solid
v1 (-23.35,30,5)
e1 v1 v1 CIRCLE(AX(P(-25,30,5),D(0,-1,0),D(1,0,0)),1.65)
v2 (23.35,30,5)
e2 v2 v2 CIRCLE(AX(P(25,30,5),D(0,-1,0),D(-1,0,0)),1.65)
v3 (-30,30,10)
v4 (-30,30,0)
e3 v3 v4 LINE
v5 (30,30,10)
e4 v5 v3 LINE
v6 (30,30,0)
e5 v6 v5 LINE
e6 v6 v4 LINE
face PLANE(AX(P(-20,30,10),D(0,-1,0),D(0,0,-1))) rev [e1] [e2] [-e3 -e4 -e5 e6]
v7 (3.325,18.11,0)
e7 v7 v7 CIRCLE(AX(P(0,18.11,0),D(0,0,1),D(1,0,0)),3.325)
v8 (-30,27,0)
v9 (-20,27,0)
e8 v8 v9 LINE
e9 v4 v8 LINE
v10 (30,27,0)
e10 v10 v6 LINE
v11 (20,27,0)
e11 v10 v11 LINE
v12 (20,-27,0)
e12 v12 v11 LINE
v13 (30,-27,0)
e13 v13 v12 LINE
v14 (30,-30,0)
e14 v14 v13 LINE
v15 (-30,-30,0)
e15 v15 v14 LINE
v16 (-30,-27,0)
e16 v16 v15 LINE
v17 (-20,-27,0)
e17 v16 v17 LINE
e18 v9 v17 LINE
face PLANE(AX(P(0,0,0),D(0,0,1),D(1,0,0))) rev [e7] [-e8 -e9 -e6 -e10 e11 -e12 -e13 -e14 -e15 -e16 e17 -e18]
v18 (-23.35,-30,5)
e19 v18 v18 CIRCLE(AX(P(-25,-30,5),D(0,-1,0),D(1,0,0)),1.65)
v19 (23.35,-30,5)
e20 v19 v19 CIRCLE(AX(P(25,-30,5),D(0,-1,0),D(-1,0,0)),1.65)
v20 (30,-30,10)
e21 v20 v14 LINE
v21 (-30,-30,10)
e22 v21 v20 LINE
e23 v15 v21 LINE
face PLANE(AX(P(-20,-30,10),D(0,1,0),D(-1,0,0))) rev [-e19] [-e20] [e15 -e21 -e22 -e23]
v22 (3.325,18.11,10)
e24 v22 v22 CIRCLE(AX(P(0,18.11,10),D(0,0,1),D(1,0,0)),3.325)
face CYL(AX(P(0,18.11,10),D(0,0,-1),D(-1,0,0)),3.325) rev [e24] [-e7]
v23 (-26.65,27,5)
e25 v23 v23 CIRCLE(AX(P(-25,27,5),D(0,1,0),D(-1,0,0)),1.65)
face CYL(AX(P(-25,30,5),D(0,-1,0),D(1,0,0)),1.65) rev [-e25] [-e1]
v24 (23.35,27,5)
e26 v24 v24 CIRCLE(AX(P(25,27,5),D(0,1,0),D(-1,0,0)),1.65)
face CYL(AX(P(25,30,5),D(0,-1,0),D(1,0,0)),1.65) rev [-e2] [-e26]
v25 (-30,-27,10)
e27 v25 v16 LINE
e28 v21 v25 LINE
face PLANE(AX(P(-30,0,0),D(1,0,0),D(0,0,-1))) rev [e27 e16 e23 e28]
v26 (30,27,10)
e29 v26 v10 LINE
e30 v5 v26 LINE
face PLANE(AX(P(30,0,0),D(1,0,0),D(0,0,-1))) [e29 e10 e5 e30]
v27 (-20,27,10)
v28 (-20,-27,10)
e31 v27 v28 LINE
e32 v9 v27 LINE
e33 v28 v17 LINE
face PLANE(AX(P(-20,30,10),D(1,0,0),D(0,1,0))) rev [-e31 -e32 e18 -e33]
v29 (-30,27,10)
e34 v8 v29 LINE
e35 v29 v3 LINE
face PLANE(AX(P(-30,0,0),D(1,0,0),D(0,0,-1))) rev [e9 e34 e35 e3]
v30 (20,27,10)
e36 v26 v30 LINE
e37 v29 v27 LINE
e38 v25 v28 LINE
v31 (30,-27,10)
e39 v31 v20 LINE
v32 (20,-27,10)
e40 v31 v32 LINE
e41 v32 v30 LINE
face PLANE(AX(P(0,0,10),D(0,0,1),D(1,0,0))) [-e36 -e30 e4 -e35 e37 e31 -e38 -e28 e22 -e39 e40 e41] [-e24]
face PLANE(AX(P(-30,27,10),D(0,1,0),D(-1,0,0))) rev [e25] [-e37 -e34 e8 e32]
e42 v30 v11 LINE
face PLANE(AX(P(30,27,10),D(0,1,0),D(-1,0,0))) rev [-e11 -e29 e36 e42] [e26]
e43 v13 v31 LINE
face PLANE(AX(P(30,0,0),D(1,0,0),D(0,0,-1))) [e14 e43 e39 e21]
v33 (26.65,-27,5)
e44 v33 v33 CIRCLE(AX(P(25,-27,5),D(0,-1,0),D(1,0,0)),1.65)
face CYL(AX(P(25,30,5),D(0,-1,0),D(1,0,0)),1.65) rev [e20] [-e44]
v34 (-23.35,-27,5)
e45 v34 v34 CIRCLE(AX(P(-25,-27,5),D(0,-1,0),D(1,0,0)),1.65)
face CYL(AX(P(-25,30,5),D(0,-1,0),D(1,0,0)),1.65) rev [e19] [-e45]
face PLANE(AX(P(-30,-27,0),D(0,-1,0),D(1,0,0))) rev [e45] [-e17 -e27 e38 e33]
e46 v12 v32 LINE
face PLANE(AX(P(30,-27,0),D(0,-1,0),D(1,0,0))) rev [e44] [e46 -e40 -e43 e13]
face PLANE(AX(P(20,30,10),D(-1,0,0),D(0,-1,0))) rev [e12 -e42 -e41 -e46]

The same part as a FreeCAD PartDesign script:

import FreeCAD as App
import Part
import Sketcher
Q = App.Units.Quantity


def add_polygon(sketch, points):
    """Adds a closed chain of lines whose ends are joined by coincident constraints."""
    first, n = sketch.GeometryCount, len(points)
    for a, b in zip(points, points[1:] + points[:1]):
        sketch.addGeometry(Part.LineSegment(App.Vector(*a, 0), App.Vector(*b, 0)), False)
    for i in range(n):
        sketch.addConstraint(Sketcher.Constraint("Coincident", first + i, 2, first + (i + 1) % n, 1))

doc = App.newDocument("Part")
params = doc.addObject("Spreadsheet::Sheet", "Params")
for row, (alias, value) in enumerate([
    ("sketch1_diameter", "6.65 mm"),
    ("sketch1_width", "40 mm"),
    ("sketch1_height", "60 mm"),
    ("pad1_length", "10 mm"),
    ("sketch2_width", "3 mm"),
    ("sketch2_height", "10 mm"),
    ("pad2_length", "10 mm"),
    ("sketch3_width", "3 mm"),
    ("sketch3_height", "10 mm"),
    ("pad3_length", "10 mm"),
    ("sketch4_diameter", "3.3 mm"),
], start=1):
    params.set(f"A{row}", alias)
    params.set(f"B{row}", "=" + value)
    params.setAlias(f"B{row}", alias)

body = doc.addObject("PartDesign::Body", "Body")

sketch1 = doc.addObject("Sketcher::SketchObject", "Sketch")
body.addObject(sketch1)
sketch1.AttachmentSupport = (doc.XY_Plane, [""])
sketch1.MapMode = "FlatFace"
add_polygon(sketch1, [(-20, 30), (-20, -30), (20, -30), (20, 30)])
sketch1.addGeometry(Part.Circle(App.Vector(0, 18.1, 0), App.Vector(0, 0, 1), 3.3), False)
sketch1.addConstraint([
    Sketcher.Constraint("Vertical", 0),
    Sketcher.Constraint("Horizontal", 1),
    Sketcher.Constraint("Vertical", 2),
    Sketcher.Constraint("Horizontal", 3),
    Sketcher.Constraint("Symmetric", 0, 2, 2, 2, -1, 1),
    Sketcher.Constraint("PointOnObject", 4, 3, -2),
    Sketcher.Constraint("Diameter", 4, Q("6.65 mm")),
    Sketcher.Constraint("DistanceX", 1, 1, 1, 2, Q("40 mm")),
    Sketcher.Constraint("DistanceY", 0, 2, 0, 1, Q("60 mm")),
    Sketcher.Constraint("DistanceY", -1, 1, 4, 3, Q("18.11 mm")),
])
sketch1.setExpression("Constraints[10]", "Params.sketch1_diameter")
sketch1.setExpression("Constraints[11]", "Params.sketch1_width")
sketch1.setExpression("Constraints[12]", "Params.sketch1_height")
pad1 = doc.addObject("PartDesign::Pad", "Pad")
body.addObject(pad1)
pad1.Profile = sketch1
pad1.setExpression("Length", "Params.pad1_length")

sketch2 = doc.addObject("Sketcher::SketchObject", "Sketch001")
body.addObject(sketch2)
sketch2.AttachmentSupport = (doc.YZ_Plane, [""])
sketch2.MapMode = "FlatFace"
sketch2.AttachmentOffset = App.Placement(App.Vector(0, 0, 20), App.Rotation())
add_polygon(sketch2, [(30, 10), (27, 10), (27, 0), (30, 0)])
add_polygon(sketch2, [(-27, 10), (-30, 10), (-30, 0), (-27, 0)])
sketch2.addConstraint([
    Sketcher.Constraint("Horizontal", 0),
    Sketcher.Constraint("Vertical", 1),
    Sketcher.Constraint("Horizontal", 2),
    Sketcher.Constraint("Vertical", 3),
    Sketcher.Constraint("Horizontal", 4),
    Sketcher.Constraint("Vertical", 5),
    Sketcher.Constraint("Horizontal", 6),
    Sketcher.Constraint("Vertical", 7),
    Sketcher.Constraint("Symmetric", 2, 2, 5, 2, -1, 1),
    Sketcher.Constraint("Symmetric", 1, 2, 6, 2, -2),
    Sketcher.Constraint("Horizontal", 3, 2, 4, 2),
    Sketcher.Constraint("DistanceX", 0, 2, 0, 1, Q("3 mm")),
    Sketcher.Constraint("DistanceY", 1, 2, 1, 1, Q("10 mm")),
    Sketcher.Constraint("DistanceX", -1, 1, 0, 2, Q("27 mm")),
])
sketch2.setExpression("Constraints[19]", "Params.sketch2_width")
sketch2.setExpression("Constraints[20]", "Params.sketch2_height")
pad2 = doc.addObject("PartDesign::Pad", "Pad001")
body.addObject(pad2)
pad2.Profile = sketch2
pad2.setExpression("Length", "Params.pad2_length")

sketch3 = doc.addObject("Sketcher::SketchObject", "Sketch002")
body.addObject(sketch3)
sketch3.AttachmentSupport = (doc.YZ_Plane, [""])
sketch3.MapMode = "FlatFace"
sketch3.AttachmentOffset = App.Placement(App.Vector(0, 0, -20), App.Rotation())
add_polygon(sketch3, [(30, 0), (27, 0), (27, 10), (30, 10)])
add_polygon(sketch3, [(-27, 0), (-30, 0), (-30, 10), (-27, 10)])
sketch3.addConstraint([
    Sketcher.Constraint("Horizontal", 0),
    Sketcher.Constraint("Vertical", 1),
    Sketcher.Constraint("Horizontal", 2),
    Sketcher.Constraint("Vertical", 3),
    Sketcher.Constraint("Horizontal", 4),
    Sketcher.Constraint("Vertical", 5),
    Sketcher.Constraint("Horizontal", 6),
    Sketcher.Constraint("Vertical", 7),
    Sketcher.Constraint("Symmetric", 3, 2, 4, 2, -1, 1),
    Sketcher.Constraint("Symmetric", 1, 2, 6, 2, -2),
    Sketcher.Constraint("PointOnObject", 0, 2, -1),
    Sketcher.Constraint("DistanceX", 0, 2, 0, 1, Q("3 mm")),
    Sketcher.Constraint("DistanceY", 1, 1, 1, 2, Q("10 mm")),
    Sketcher.Constraint("DistanceX", -1, 1, 0, 2, Q("27 mm")),
])
sketch3.setExpression("Constraints[19]", "Params.sketch3_width")
sketch3.setExpression("Constraints[20]", "Params.sketch3_height")
pad3 = doc.addObject("PartDesign::Pad", "Pad002")
body.addObject(pad3)
pad3.Profile = sketch3
pad3.setExpression("Length", "Params.pad3_length")
pad3.Reversed = True

sketch4 = doc.addObject("Sketcher::SketchObject", "Sketch003")
body.addObject(sketch4)
sketch4.AttachmentSupport = (doc.XZ_Plane, [""])
sketch4.MapMode = "FlatFace"
sketch4.AttachmentOffset = App.Placement(App.Vector(0, 0, -27), App.Rotation())
sketch4.addGeometry([
    Part.Circle(App.Vector(-25, 5, 0), App.Vector(0, 0, 1), 1.6),
    Part.Circle(App.Vector(25, 5, 0), App.Vector(0, 0, 1), 1.6),
], False)
sketch4.addConstraint([
    Sketcher.Constraint("Equal", 0, 1),
    Sketcher.Constraint("Symmetric", 0, 3, 1, 3, -2),
    Sketcher.Constraint("Diameter", 0, Q("3.3 mm")),
    Sketcher.Constraint("DistanceX", 0, 3, -1, 1, Q("25 mm")),
    Sketcher.Constraint("DistanceY", -1, 1, 0, 3, Q("5 mm")),
])
sketch4.setExpression("Constraints[2]", "Params.sketch4_diameter")
pocket1 = doc.addObject("PartDesign::Pocket", "Pocket")
body.addObject(pocket1)
pocket1.Profile = sketch4
pocket1.Type = "ThroughAll"
pocket1.Midplane = True

doc.recompute()
